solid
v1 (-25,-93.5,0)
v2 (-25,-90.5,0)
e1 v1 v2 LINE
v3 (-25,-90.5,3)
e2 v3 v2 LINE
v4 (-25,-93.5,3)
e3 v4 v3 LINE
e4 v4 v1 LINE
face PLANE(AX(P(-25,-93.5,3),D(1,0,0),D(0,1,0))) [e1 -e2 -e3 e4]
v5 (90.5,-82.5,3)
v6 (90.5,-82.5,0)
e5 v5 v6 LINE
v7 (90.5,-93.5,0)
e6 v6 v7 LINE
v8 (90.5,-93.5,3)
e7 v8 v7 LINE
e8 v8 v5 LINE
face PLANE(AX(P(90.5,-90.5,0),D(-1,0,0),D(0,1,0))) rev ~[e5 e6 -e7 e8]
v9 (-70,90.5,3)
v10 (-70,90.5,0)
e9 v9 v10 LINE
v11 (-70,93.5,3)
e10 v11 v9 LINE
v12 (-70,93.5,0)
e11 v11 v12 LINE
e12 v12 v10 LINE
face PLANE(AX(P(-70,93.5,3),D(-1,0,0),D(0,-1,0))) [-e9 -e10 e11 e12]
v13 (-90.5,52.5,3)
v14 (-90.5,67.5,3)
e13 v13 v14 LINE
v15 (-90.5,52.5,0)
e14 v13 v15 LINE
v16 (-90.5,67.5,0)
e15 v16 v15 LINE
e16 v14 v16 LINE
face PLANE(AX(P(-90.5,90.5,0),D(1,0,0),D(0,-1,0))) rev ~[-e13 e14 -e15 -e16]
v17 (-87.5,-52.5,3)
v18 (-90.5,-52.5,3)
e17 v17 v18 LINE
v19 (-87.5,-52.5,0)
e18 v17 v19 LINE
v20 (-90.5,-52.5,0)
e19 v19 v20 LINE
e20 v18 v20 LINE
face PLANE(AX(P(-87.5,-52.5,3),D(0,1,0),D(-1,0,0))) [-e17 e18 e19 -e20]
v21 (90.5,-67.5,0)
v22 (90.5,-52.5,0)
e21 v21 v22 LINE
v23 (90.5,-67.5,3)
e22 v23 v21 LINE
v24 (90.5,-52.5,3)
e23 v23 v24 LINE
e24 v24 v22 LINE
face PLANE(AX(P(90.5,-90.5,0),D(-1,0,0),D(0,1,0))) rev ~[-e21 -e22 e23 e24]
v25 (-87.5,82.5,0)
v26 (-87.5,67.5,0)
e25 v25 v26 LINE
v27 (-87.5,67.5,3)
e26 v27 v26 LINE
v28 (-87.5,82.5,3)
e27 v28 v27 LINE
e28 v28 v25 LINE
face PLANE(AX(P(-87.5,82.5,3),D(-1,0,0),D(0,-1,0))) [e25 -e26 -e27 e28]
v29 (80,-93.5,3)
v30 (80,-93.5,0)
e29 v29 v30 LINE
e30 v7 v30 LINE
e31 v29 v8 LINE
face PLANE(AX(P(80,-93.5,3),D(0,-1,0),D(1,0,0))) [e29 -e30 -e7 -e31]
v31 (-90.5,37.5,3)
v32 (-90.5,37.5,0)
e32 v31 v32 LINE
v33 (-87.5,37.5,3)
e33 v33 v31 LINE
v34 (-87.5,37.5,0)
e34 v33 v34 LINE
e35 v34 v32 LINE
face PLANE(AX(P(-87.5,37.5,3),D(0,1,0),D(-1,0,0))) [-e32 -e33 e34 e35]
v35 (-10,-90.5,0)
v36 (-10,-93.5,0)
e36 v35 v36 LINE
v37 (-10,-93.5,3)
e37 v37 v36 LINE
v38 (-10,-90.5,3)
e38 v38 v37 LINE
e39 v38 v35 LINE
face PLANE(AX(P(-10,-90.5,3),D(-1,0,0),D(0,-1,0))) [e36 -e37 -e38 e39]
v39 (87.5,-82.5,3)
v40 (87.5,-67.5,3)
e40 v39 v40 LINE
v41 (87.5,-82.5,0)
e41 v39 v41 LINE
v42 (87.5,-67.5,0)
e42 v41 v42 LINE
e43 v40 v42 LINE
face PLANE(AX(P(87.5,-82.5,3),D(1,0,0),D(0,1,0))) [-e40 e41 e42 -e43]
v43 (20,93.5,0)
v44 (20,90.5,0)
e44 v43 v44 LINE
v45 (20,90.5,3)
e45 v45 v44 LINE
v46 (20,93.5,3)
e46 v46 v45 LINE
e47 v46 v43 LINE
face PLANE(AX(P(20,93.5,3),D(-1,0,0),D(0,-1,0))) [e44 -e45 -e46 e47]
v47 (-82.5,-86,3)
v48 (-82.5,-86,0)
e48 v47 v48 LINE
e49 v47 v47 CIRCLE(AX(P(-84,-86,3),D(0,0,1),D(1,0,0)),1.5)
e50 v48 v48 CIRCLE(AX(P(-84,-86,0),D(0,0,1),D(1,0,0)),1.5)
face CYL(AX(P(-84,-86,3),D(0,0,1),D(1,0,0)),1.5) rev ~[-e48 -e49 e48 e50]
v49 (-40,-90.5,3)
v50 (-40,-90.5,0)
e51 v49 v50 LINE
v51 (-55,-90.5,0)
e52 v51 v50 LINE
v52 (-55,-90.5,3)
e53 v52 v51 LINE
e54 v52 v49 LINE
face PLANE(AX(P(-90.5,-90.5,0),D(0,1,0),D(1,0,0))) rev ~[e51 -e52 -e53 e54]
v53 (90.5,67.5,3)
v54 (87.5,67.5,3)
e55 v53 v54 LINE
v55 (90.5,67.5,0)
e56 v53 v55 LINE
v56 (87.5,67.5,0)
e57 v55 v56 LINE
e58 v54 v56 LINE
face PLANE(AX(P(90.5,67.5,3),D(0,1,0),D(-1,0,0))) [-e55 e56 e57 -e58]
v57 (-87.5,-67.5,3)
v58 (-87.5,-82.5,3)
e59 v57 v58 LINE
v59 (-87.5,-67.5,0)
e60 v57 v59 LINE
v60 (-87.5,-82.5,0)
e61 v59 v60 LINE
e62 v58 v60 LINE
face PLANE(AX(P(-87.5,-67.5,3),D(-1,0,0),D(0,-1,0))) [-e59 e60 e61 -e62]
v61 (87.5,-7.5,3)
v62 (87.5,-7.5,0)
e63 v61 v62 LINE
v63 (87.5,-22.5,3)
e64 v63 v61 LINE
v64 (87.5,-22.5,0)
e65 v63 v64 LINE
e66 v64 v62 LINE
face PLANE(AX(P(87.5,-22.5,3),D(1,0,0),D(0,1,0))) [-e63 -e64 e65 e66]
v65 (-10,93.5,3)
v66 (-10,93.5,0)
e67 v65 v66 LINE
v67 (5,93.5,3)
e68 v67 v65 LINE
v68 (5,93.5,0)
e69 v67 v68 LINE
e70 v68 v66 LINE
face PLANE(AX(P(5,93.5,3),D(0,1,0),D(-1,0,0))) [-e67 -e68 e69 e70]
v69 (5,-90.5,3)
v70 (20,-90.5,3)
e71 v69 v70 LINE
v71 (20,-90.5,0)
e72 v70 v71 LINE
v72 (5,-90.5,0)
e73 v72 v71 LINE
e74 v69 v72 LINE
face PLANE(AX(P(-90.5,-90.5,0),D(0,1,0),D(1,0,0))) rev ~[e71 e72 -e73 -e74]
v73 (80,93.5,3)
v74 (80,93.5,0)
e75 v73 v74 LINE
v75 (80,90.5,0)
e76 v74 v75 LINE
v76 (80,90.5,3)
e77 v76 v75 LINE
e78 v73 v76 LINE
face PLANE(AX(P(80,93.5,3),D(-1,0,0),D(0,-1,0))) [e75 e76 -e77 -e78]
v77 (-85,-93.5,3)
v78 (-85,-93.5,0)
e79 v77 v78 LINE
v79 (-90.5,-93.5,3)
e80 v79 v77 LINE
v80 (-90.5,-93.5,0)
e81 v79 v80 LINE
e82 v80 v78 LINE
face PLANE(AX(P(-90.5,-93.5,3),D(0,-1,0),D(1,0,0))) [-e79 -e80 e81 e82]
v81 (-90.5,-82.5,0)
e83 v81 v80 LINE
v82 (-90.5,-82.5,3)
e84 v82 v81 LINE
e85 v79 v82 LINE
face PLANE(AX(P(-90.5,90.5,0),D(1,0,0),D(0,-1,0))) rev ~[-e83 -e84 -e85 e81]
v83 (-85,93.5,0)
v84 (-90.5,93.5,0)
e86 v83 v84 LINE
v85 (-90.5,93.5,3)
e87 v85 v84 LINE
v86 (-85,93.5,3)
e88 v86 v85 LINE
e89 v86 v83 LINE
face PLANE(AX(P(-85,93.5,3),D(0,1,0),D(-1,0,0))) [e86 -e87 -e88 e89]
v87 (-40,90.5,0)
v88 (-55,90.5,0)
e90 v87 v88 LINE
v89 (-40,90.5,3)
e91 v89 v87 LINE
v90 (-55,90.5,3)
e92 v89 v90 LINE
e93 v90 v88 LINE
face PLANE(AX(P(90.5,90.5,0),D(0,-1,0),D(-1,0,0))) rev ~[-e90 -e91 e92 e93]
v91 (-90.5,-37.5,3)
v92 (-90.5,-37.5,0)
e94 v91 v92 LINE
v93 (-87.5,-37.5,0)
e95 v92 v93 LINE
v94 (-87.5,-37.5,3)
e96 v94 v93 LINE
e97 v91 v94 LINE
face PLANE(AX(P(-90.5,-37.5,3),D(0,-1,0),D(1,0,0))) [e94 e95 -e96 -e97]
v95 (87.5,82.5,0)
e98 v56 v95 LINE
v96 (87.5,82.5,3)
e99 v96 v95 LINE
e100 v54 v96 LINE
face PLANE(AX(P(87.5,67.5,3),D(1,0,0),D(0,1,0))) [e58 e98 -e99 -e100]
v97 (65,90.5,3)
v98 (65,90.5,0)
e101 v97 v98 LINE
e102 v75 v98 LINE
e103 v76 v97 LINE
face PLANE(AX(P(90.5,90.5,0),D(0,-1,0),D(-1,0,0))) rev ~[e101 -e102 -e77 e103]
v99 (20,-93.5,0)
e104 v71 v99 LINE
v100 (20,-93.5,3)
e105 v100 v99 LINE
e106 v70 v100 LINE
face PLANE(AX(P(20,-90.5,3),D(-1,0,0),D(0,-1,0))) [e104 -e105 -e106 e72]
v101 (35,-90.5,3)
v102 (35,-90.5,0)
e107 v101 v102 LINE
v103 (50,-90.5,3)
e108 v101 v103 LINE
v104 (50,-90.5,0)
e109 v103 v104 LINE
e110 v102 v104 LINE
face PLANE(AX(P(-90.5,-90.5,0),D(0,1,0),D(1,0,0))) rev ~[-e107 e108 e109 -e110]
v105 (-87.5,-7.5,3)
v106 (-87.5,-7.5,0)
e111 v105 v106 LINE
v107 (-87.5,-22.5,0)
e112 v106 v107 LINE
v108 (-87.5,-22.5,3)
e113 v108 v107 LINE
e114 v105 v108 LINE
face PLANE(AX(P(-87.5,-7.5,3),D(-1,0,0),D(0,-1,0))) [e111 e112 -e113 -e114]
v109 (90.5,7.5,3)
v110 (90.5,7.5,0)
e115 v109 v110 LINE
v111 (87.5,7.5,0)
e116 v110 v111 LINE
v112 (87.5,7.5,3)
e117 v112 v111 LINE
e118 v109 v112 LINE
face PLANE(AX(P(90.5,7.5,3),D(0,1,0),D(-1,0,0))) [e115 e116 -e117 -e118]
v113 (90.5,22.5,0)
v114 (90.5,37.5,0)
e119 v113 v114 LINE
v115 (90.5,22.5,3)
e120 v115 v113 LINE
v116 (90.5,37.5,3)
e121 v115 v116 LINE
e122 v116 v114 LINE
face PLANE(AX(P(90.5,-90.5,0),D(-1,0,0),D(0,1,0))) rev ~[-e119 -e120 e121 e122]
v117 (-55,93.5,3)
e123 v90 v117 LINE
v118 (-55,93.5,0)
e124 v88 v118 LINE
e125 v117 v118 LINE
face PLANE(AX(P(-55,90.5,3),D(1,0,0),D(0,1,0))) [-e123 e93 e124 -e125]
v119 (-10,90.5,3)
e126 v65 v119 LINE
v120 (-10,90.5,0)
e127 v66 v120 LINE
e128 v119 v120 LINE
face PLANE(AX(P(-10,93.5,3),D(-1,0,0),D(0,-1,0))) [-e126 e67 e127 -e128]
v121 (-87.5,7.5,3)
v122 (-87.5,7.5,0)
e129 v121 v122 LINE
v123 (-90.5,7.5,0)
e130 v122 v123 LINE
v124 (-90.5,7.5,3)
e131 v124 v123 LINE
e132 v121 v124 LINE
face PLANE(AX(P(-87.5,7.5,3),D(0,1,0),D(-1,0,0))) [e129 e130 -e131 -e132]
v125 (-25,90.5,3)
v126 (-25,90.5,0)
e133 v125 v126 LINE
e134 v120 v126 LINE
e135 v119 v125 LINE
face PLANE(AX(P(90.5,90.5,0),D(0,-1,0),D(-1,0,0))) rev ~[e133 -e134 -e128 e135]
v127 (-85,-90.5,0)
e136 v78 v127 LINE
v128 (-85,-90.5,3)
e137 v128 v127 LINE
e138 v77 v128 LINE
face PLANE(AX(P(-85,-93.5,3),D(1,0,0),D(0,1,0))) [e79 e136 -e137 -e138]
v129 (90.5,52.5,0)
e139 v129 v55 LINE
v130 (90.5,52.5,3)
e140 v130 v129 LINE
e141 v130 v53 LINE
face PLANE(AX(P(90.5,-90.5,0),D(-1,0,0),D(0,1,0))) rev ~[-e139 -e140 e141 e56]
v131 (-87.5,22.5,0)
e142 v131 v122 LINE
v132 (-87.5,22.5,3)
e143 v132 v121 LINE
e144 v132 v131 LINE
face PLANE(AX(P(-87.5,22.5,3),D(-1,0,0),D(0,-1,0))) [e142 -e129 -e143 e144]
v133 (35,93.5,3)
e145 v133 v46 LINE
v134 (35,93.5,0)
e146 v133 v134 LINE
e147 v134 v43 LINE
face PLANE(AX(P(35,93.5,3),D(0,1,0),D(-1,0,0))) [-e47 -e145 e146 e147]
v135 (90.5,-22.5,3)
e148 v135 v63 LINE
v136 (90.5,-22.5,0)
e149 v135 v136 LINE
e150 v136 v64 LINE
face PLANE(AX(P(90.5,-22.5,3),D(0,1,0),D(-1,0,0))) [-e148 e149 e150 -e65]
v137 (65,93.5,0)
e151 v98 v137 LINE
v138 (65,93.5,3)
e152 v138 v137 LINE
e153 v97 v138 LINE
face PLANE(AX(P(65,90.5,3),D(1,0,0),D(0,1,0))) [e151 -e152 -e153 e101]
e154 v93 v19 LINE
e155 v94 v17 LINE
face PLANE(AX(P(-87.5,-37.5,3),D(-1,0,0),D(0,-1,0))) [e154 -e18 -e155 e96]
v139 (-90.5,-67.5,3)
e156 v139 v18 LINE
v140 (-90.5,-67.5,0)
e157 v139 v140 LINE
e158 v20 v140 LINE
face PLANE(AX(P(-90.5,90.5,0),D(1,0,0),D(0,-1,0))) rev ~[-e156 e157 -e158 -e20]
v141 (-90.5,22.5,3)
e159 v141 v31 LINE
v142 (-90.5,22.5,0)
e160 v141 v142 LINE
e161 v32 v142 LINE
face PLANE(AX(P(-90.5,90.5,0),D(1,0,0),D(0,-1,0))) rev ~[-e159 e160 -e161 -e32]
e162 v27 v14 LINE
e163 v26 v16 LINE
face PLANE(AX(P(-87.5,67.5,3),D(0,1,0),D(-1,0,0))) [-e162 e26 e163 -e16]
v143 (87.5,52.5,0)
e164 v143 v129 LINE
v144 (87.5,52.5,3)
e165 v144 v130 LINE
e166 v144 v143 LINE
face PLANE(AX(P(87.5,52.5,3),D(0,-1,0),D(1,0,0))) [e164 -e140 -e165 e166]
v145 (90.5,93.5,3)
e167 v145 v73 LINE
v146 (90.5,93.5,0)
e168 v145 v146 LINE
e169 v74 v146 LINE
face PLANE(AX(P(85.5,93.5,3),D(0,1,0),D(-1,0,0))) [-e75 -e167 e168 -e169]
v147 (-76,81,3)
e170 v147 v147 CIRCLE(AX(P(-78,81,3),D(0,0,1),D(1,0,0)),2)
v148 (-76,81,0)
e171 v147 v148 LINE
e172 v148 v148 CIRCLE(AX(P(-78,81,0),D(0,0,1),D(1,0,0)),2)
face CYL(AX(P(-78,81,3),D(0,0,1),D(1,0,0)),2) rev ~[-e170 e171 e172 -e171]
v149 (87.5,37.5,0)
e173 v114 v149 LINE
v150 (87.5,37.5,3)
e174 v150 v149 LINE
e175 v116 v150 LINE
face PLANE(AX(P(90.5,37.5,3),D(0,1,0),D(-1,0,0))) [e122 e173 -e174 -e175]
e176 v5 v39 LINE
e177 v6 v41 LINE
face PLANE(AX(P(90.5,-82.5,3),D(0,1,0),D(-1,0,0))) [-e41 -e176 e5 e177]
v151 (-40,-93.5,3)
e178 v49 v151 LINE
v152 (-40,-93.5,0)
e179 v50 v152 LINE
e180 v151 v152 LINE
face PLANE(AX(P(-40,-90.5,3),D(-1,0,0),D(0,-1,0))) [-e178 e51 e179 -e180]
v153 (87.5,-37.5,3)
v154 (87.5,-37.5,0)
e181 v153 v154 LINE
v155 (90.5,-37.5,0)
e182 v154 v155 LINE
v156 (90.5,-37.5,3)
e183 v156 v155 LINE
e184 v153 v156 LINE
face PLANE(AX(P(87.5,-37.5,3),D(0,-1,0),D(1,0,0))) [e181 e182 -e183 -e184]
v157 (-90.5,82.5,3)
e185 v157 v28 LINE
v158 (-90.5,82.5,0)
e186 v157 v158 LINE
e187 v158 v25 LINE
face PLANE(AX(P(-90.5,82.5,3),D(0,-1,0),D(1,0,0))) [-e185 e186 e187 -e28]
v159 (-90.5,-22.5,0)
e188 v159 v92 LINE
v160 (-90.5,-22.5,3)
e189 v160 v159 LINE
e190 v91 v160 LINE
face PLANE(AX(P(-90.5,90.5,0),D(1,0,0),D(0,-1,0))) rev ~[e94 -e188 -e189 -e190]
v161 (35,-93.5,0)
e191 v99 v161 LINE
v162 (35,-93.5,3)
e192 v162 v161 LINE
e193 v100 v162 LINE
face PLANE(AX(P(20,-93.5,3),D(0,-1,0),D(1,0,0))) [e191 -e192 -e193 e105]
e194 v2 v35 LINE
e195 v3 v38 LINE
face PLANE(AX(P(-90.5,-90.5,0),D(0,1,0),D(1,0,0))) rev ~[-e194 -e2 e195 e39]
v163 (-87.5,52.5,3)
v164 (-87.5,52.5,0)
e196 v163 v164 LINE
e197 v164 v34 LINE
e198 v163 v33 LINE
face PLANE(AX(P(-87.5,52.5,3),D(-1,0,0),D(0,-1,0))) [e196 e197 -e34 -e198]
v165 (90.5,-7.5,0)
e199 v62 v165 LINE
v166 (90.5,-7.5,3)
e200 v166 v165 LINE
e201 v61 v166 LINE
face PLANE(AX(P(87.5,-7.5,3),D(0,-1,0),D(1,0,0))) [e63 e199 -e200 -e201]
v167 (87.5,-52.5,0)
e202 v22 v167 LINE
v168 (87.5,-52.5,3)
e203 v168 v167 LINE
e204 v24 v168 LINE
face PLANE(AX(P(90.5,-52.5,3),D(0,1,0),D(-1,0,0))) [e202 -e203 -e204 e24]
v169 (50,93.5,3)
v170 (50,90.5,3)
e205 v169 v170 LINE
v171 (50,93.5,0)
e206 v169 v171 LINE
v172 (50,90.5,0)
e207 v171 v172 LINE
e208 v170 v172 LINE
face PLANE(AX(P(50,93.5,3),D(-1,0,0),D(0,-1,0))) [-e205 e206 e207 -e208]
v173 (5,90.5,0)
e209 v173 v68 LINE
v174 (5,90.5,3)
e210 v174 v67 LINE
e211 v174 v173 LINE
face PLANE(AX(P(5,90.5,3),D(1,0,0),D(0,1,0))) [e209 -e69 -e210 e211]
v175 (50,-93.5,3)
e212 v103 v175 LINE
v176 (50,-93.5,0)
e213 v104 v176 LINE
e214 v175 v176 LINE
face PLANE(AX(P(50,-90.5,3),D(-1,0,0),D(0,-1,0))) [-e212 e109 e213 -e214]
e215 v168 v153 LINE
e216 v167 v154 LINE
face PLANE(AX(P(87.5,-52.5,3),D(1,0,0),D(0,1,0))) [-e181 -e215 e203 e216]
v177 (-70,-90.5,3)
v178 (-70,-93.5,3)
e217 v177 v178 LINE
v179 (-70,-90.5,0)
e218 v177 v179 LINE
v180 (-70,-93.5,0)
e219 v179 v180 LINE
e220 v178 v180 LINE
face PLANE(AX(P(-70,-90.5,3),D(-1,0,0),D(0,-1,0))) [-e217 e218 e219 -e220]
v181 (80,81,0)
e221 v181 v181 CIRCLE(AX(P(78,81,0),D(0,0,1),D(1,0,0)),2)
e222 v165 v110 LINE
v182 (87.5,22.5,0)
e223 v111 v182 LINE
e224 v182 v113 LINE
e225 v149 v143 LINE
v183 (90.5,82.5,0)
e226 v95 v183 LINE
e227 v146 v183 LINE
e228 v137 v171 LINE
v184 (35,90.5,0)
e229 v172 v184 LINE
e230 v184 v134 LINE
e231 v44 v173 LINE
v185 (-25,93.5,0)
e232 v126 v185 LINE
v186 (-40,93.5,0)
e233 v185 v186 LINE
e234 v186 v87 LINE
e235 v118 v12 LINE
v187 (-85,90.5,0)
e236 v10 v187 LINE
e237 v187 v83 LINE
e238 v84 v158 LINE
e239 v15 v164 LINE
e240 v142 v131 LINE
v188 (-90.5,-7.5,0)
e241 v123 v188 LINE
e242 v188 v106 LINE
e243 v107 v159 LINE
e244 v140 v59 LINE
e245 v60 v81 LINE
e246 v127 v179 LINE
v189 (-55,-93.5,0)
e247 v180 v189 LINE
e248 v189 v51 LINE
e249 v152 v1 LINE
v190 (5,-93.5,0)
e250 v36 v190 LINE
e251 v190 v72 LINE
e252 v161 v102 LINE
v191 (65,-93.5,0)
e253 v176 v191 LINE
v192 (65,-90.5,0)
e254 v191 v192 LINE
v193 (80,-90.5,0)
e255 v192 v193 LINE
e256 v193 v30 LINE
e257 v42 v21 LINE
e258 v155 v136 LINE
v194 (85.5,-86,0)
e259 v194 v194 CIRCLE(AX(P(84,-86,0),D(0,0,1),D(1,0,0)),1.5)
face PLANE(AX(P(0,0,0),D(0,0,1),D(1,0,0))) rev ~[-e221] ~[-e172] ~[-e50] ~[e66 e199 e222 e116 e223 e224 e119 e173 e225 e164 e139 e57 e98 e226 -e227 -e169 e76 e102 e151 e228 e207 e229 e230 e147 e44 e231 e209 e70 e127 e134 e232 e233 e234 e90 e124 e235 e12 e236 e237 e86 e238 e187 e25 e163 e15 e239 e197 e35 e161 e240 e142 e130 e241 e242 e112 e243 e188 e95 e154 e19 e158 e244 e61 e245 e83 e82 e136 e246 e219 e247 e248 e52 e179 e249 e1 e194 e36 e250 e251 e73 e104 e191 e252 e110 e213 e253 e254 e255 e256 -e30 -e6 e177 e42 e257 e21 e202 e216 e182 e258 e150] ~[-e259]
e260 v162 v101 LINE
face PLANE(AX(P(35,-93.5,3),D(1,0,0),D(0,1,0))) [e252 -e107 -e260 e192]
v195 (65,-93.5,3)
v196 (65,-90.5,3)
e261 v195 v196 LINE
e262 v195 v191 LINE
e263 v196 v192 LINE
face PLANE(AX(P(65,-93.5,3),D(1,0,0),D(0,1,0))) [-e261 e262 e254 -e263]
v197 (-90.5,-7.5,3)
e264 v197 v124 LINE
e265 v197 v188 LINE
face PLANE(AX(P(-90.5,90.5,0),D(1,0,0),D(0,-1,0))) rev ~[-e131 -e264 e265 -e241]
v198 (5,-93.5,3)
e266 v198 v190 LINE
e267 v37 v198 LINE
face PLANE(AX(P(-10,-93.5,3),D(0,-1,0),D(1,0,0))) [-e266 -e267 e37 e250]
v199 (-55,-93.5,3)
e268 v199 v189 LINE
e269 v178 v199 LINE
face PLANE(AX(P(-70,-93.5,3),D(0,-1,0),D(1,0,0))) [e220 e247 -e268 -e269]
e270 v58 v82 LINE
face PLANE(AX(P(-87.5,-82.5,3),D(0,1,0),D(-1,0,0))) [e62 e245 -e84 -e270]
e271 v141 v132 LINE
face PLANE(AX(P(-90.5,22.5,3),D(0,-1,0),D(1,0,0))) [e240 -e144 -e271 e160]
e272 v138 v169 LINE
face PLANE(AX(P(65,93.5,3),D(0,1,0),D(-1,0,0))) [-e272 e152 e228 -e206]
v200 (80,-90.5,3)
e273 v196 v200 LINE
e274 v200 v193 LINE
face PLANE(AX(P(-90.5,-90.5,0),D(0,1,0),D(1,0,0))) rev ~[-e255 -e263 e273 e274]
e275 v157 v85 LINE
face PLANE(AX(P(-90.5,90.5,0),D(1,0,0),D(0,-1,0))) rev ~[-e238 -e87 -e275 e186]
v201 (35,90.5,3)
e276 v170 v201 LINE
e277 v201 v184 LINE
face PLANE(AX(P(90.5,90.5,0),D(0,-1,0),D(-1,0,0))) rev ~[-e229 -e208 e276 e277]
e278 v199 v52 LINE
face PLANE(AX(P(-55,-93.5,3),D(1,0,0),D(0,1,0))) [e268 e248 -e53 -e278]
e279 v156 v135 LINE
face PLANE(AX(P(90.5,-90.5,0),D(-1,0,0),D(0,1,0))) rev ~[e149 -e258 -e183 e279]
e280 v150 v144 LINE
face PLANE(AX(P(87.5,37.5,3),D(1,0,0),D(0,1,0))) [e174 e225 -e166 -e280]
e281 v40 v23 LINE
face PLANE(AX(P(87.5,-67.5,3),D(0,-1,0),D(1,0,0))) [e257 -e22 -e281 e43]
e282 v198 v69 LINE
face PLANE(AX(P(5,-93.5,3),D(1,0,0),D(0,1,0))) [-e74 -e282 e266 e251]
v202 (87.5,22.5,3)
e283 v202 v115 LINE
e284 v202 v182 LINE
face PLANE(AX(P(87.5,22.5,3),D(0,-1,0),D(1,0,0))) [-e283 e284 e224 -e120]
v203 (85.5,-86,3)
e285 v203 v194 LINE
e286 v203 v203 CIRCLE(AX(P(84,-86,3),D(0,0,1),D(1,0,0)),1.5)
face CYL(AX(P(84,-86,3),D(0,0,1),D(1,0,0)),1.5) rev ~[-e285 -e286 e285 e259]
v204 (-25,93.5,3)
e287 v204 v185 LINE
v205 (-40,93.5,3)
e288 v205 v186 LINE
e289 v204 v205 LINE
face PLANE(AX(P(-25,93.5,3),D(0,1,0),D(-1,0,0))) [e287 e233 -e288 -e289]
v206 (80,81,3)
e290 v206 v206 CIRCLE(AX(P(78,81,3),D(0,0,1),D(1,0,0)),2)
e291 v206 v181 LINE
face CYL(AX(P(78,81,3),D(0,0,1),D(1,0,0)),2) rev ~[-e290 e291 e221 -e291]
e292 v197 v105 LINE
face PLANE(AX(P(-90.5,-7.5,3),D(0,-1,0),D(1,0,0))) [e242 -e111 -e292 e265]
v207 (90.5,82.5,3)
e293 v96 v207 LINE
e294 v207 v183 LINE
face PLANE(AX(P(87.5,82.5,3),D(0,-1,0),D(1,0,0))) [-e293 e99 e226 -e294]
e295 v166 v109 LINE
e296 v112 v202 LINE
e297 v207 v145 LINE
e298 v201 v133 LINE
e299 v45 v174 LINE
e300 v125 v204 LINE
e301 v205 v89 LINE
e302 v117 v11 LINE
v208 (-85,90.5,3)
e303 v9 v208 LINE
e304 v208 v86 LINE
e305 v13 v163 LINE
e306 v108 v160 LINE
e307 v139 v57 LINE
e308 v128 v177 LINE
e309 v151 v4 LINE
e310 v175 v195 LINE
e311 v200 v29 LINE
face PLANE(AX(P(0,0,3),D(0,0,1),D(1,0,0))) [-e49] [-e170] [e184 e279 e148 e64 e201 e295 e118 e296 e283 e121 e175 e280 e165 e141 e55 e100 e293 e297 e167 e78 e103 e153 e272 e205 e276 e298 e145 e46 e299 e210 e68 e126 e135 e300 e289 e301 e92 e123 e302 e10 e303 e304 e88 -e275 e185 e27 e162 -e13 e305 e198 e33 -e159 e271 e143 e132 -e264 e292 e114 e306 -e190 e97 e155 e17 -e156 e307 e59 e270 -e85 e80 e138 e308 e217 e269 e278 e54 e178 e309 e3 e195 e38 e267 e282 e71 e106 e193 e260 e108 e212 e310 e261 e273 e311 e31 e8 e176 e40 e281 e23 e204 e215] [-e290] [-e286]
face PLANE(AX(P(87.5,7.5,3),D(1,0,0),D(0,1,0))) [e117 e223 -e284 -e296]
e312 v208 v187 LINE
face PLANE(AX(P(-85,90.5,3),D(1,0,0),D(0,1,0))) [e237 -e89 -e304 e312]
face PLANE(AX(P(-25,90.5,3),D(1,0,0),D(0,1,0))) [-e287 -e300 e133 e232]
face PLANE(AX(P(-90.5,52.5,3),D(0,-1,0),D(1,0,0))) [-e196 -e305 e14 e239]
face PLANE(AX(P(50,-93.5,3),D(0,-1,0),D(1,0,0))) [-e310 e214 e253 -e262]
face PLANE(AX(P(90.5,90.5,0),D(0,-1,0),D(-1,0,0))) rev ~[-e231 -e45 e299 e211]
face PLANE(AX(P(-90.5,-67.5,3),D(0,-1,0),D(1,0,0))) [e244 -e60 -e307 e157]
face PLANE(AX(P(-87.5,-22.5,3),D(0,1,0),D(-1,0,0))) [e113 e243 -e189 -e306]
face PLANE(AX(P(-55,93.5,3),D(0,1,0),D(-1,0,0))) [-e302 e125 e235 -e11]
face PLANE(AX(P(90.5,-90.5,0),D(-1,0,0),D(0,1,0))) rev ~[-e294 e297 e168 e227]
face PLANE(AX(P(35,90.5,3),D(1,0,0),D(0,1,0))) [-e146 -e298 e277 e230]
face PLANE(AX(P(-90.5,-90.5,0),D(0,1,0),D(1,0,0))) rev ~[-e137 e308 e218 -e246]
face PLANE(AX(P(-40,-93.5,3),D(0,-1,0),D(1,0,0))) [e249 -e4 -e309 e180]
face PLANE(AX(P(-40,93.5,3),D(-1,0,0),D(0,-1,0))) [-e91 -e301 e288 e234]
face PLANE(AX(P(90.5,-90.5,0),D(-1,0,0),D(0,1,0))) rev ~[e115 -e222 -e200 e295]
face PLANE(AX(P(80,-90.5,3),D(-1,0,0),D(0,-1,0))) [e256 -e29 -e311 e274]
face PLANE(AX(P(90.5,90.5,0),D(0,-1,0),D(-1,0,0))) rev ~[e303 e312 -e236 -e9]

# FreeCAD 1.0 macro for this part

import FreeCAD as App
import Part
import Sketcher

V = App.Vector
Q = App.Units.Quantity

doc = App.newDocument("Part")
body = doc.addObject("PartDesign::Body", "Body")

# Sketch on XY plane
sketch1 = body.newObject("Sketcher::SketchObject", "Sketch")
sketch1.AttachmentSupport = (doc.getObject("XY_Plane"), [""])
sketch1.MapMode = "FlatFace"
sketch1.addGeometry([
    Part.LineSegment(V(-90, 90, 0), V(-90, -90, 0)),
    Part.LineSegment(V(-90, -90, 0), V(90, -90, 0)),
    Part.LineSegment(V(90, -90, 0), V(90, 90, 0)),
    Part.LineSegment(V(90, 90, 0), V(-90, 90, 0)),
], False)
sketch1.addConstraint([
    Sketcher.Constraint("Coincident", 0, 2, 1, 1),
    Sketcher.Constraint("Coincident", 1, 2, 2, 1),
    Sketcher.Constraint("Coincident", 2, 2, 3, 1),
    Sketcher.Constraint("Coincident", 3, 2, 0, 1),
    Sketcher.Constraint("Vertical", 0),
    Sketcher.Constraint("Horizontal", 1),
    Sketcher.Constraint("Vertical", 2),
    Sketcher.Constraint("Horizontal", 3),
    Sketcher.Constraint("Symmetric", 0, 2, 2, 2, -1, 1),
    Sketcher.Constraint("Equal", 3, 0),
    Sketcher.Constraint("DistanceX", 1, 1, 1, 2, Q("181 mm")),
])
pad1 = body.newObject("PartDesign::Pad", "Pad")
pad1.Profile = sketch1
pad1.Length = 3

# Sketch on XY plane
sketch2 = body.newObject("Sketcher::SketchObject", "Sketch001")
sketch2.AttachmentSupport = (doc.getObject("XY_Plane"), [""])
sketch2.MapMode = "FlatFace"
sketch2.AttachmentOffset = App.Placement(V(0, 0, 3), App.Rotation())
sketch2.addGeometry([
    Part.LineSegment(V(-90.5, 90.5, 0), V(-85, 90.5, 0)),  # 0
    Part.LineSegment(V(-85, 90.5, 0), V(-85, 93.5, 0)),  # 1
    Part.LineSegment(V(-85, 93.5, 0), V(-90.5, 93.5, 0)),  # 2
    Part.LineSegment(V(-90.5, 93.5, 0), V(-90.5, 90.5, 0)),  # 3
    Part.LineSegment(V(-70, 90.5, 0), V(-55, 90.5, 0)),  # 4
    Part.LineSegment(V(-55, 90.5, 0), V(-55, 93.5, 0)),  # 5
    Part.LineSegment(V(-55, 93.5, 0), V(-70, 93.5, 0)),  # 6
    Part.LineSegment(V(-70, 93.5, 0), V(-70, 90.5, 0)),  # 7
    Part.LineSegment(V(-40, 90.5, 0), V(-25, 90.5, 0)),  # 8
    Part.LineSegment(V(-25, 90.5, 0), V(-25, 93.5, 0)),  # 9
    Part.LineSegment(V(-25, 93.5, 0), V(-40, 93.5, 0)),  # 10
    Part.LineSegment(V(-40, 93.5, 0), V(-40, 90.5, 0)),  # 11
    Part.LineSegment(V(-10, 90.5, 0), V(5, 90.5, 0)),  # 12
    Part.LineSegment(V(5, 90.5, 0), V(5, 93.5, 0)),  # 13
    Part.LineSegment(V(5, 93.5, 0), V(-10, 93.5, 0)),  # 14
    Part.LineSegment(V(-10, 93.5, 0), V(-10, 90.5, 0)),  # 15
    Part.LineSegment(V(20, 90.5, 0), V(35, 90.5, 0)),  # 16
    Part.LineSegment(V(35, 90.5, 0), V(35, 93.5, 0)),  # 17
    Part.LineSegment(V(35, 93.5, 0), V(20, 93.5, 0)),  # 18
    Part.LineSegment(V(20, 93.5, 0), V(20, 90.5, 0)),  # 19
    Part.LineSegment(V(50, 90.5, 0), V(65, 90.5, 0)),  # 20
    Part.LineSegment(V(65, 90.5, 0), V(65, 93.5, 0)),  # 21
    Part.LineSegment(V(65, 93.5, 0), V(50, 93.5, 0)),  # 22
    Part.LineSegment(V(50, 93.5, 0), V(50, 90.5, 0)),  # 23
    Part.LineSegment(V(80, 90.5, 0), V(85.5, 90.5, 0)),  # 24
    Part.LineSegment(V(85.5, 90.5, 0), V(85.5, 93.5, 0)),  # 25
    Part.LineSegment(V(85.5, 93.5, 0), V(80, 93.5, 0)),  # 26
    Part.LineSegment(V(80, 93.5, 0), V(80, 90.5, 0)),  # 27
    Part.LineSegment(V(-90.5, -90.5, 0), V(-90.5, -93.5, 0)),  # 28
    Part.LineSegment(V(-90.5, -93.5, 0), V(-85, -93.5, 0)),  # 29
    Part.LineSegment(V(-85, -93.5, 0), V(-85, -90.5, 0)),  # 30
    Part.LineSegment(V(-85, -90.5, 0), V(-90.5, -90.5, 0)),  # 31
    Part.LineSegment(V(80, -90.5, 0), V(80, -93.5, 0)),  # 32
    Part.LineSegment(V(80, -93.5, 0), V(85.5, -93.5, 0)),  # 33
    Part.LineSegment(V(85.5, -93.5, 0), V(85.5, -90.5, 0)),  # 34
    Part.LineSegment(V(85.5, -90.5, 0), V(80, -90.5, 0)),  # 35
    Part.LineSegment(V(-70, -93.5, 0), V(-55, -93.5, 0)),  # 36
    Part.LineSegment(V(-55, -93.5, 0), V(-55, -90.5, 0)),  # 37
    Part.LineSegment(V(-55, -90.5, 0), V(-70, -90.5, 0)),  # 38
    Part.LineSegment(V(-70, -90.5, 0), V(-70, -93.5, 0)),  # 39
    Part.LineSegment(V(-40, -93.5, 0), V(-25, -93.5, 0)),  # 40
    Part.LineSegment(V(-25, -93.5, 0), V(-25, -90.5, 0)),  # 41
    Part.LineSegment(V(-25, -90.5, 0), V(-40, -90.5, 0)),  # 42
    Part.LineSegment(V(-40, -90.5, 0), V(-40, -93.5, 0)),  # 43
    Part.LineSegment(V(-10, -93.5, 0), V(5, -93.5, 0)),  # 44
    Part.LineSegment(V(5, -93.5, 0), V(5, -90.5, 0)),  # 45
    Part.LineSegment(V(5, -90.5, 0), V(-10, -90.5, 0)),  # 46
    Part.LineSegment(V(-10, -90.5, 0), V(-10, -93.5, 0)),  # 47
    Part.LineSegment(V(20, -93.5, 0), V(35, -93.5, 0)),  # 48
    Part.LineSegment(V(35, -93.5, 0), V(35, -90.5, 0)),  # 49
    Part.LineSegment(V(35, -90.5, 0), V(20, -90.5, 0)),  # 50
    Part.LineSegment(V(20, -90.5, 0), V(20, -93.5, 0)),  # 51
    Part.LineSegment(V(50, -93.5, 0), V(65, -93.5, 0)),  # 52
    Part.LineSegment(V(65, -93.5, 0), V(65, -90.5, 0)),  # 53
    Part.LineSegment(V(65, -90.5, 0), V(50, -90.5, 0)),  # 54
    Part.LineSegment(V(50, -90.5, 0), V(50, -93.5, 0)),  # 55
], False)
sketch2.addConstraint([
    Sketcher.Constraint("Coincident", 0, 2, 1, 1),
    Sketcher.Constraint("Coincident", 1, 2, 2, 1),
    Sketcher.Constraint("Coincident", 2, 2, 3, 1),
    Sketcher.Constraint("Coincident", 3, 2, 0, 1),
    Sketcher.Constraint("Coincident", 4, 2, 5, 1),
    Sketcher.Constraint("Coincident", 5, 2, 6, 1),
    Sketcher.Constraint("Coincident", 6, 2, 7, 1),
    Sketcher.Constraint("Coincident", 7, 2, 4, 1),
    Sketcher.Constraint("Coincident", 8, 2, 9, 1),
    Sketcher.Constraint("Coincident", 9, 2, 10, 1),
    Sketcher.Constraint("Coincident", 10, 2, 11, 1),
    Sketcher.Constraint("Coincident", 11, 2, 8, 1),
    Sketcher.Constraint("Coincident", 12, 2, 13, 1),
    Sketcher.Constraint("Coincident", 13, 2, 14, 1),
    Sketcher.Constraint("Coincident", 14, 2, 15, 1),
    Sketcher.Constraint("Coincident", 15, 2, 12, 1),
    Sketcher.Constraint("Coincident", 16, 2, 17, 1),
    Sketcher.Constraint("Coincident", 17, 2, 18, 1),
    Sketcher.Constraint("Coincident", 18, 2, 19, 1),
    Sketcher.Constraint("Coincident", 19, 2, 16, 1),
    Sketcher.Constraint("Coincident", 20, 2, 21, 1),
    Sketcher.Constraint("Coincident", 21, 2, 22, 1),
    Sketcher.Constraint("Coincident", 22, 2, 23, 1),
    Sketcher.Constraint("Coincident", 23, 2, 20, 1),
    Sketcher.Constraint("Coincident", 24, 2, 25, 1),
    Sketcher.Constraint("Coincident", 25, 2, 26, 1),
    Sketcher.Constraint("Coincident", 26, 2, 27, 1),
    Sketcher.Constraint("Coincident", 27, 2, 24, 1),
    Sketcher.Constraint("Coincident", 28, 2, 29, 1),
    Sketcher.Constraint("Coincident", 29, 2, 30, 1),
    Sketcher.Constraint("Coincident", 30, 2, 31, 1),
    Sketcher.Constraint("Coincident", 31, 2, 28, 1),
    Sketcher.Constraint("Coincident", 32, 2, 33, 1),
    Sketcher.Constraint("Coincident", 33, 2, 34, 1),
    Sketcher.Constraint("Coincident", 34, 2, 35, 1),
    Sketcher.Constraint("Coincident", 35, 2, 32, 1),
    Sketcher.Constraint("Coincident", 36, 2, 37, 1),
    Sketcher.Constraint("Coincident", 37, 2, 38, 1),
    Sketcher.Constraint("Coincident", 38, 2, 39, 1),
    Sketcher.Constraint("Coincident", 39, 2, 36, 1),
    Sketcher.Constraint("Coincident", 40, 2, 41, 1),
    Sketcher.Constraint("Coincident", 41, 2, 42, 1),
    Sketcher.Constraint("Coincident", 42, 2, 43, 1),
    Sketcher.Constraint("Coincident", 43, 2, 40, 1),
    Sketcher.Constraint("Coincident", 44, 2, 45, 1),
    Sketcher.Constraint("Coincident", 45, 2, 46, 1),
    Sketcher.Constraint("Coincident", 46, 2, 47, 1),
    Sketcher.Constraint("Coincident", 47, 2, 44, 1),
    Sketcher.Constraint("Coincident", 48, 2, 49, 1),
    Sketcher.Constraint("Coincident", 49, 2, 50, 1),
    Sketcher.Constraint("Coincident", 50, 2, 51, 1),
    Sketcher.Constraint("Coincident", 51, 2, 48, 1),
    Sketcher.Constraint("Coincident", 52, 2, 53, 1),
    Sketcher.Constraint("Coincident", 53, 2, 54, 1),
    Sketcher.Constraint("Coincident", 54, 2, 55, 1),
    Sketcher.Constraint("Coincident", 55, 2, 52, 1),
    Sketcher.Constraint("Horizontal", 0),
    Sketcher.Constraint("Vertical", 1),
    Sketcher.Constraint("Horizontal", 2),
    Sketcher.Constraint("Vertical", 3),
    Sketcher.Constraint("Horizontal", 4),
    Sketcher.Constraint("Vertical", 5),
    Sketcher.Constraint("Horizontal", 6),
    Sketcher.Constraint("Vertical", 7),
    Sketcher.Constraint("Horizontal", 8),
    Sketcher.Constraint("Vertical", 9),
    Sketcher.Constraint("Horizontal", 10),
    Sketcher.Constraint("Vertical", 11),
    Sketcher.Constraint("Horizontal", 12),
    Sketcher.Constraint("Vertical", 13),
    Sketcher.Constraint("Horizontal", 14),
    Sketcher.Constraint("Vertical", 15),
    Sketcher.Constraint("Horizontal", 16),
    Sketcher.Constraint("Vertical", 17),
    Sketcher.Constraint("Horizontal", 18),
    Sketcher.Constraint("Vertical", 19),
    Sketcher.Constraint("Horizontal", 20),
    Sketcher.Constraint("Vertical", 21),
    Sketcher.Constraint("Horizontal", 22),
    Sketcher.Constraint("Vertical", 23),
    Sketcher.Constraint("Horizontal", 24),
    Sketcher.Constraint("Vertical", 25),
    Sketcher.Constraint("Horizontal", 26),
    Sketcher.Constraint("Vertical", 27),
    Sketcher.Constraint("Vertical", 28),
    Sketcher.Constraint("Horizontal", 29),
    Sketcher.Constraint("Vertical", 30),
    Sketcher.Constraint("Horizontal", 31),
    Sketcher.Constraint("Vertical", 32),
    Sketcher.Constraint("Horizontal", 33),
    Sketcher.Constraint("Vertical", 34),
    Sketcher.Constraint("Horizontal", 35),
    Sketcher.Constraint("Horizontal", 36),
    Sketcher.Constraint("Vertical", 37),
    Sketcher.Constraint("Horizontal", 38),
    Sketcher.Constraint("Vertical", 39),
    Sketcher.Constraint("Horizontal", 40),
    Sketcher.Constraint("Vertical", 41),
    Sketcher.Constraint("Horizontal", 42),
    Sketcher.Constraint("Vertical", 43),
    Sketcher.Constraint("Horizontal", 44),
    Sketcher.Constraint("Vertical", 45),
    Sketcher.Constraint("Horizontal", 46),
    Sketcher.Constraint("Vertical", 47),
    Sketcher.Constraint("Horizontal", 48),
    Sketcher.Constraint("Vertical", 49),
    Sketcher.Constraint("Horizontal", 50),
    Sketcher.Constraint("Vertical", 51),
    Sketcher.Constraint("Horizontal", 52),
    Sketcher.Constraint("Vertical", 53),
    Sketcher.Constraint("Horizontal", 54),
    Sketcher.Constraint("Vertical", 55),
    Sketcher.Constraint("Symmetric", 2, 2, 28, 2, -1),
    Sketcher.Constraint("Symmetric", 0, 2, 30, 2, -1),
    Sketcher.Constraint("Symmetric", 26, 2, 32, 2, -1),
    Sketcher.Constraint("Symmetric", 24, 2, 34, 2, -1),
    Sketcher.Constraint("Symmetric", 5, 2, 36, 2, -1),
    Sketcher.Constraint("Symmetric", 7, 2, 38, 2, -1),
    Sketcher.Constraint("Symmetric", 9, 2, 40, 2, -1),
    Sketcher.Constraint("Symmetric", 11, 2, 42, 2, -1),
    Sketcher.Constraint("Symmetric", 13, 2, 44, 2, -1),
    Sketcher.Constraint("Symmetric", 15, 2, 46, 2, -1),
    Sketcher.Constraint("Symmetric", 17, 2, 48, 2, -1),
    Sketcher.Constraint("Symmetric", 19, 2, 50, 2, -1),
    Sketcher.Constraint("Symmetric", 21, 2, 52, 2, -1),
    Sketcher.Constraint("Symmetric", 23, 2, 54, 2, -1),
    Sketcher.Constraint("Horizontal", 3, 2, 4, 2),
    Sketcher.Constraint("Horizontal", 2, 2, 5, 2),
    Sketcher.Constraint("Horizontal", 7, 2, 8, 2),
    Sketcher.Constraint("Horizontal", 6, 2, 9, 2),
    Sketcher.Constraint("Horizontal", 11, 2, 12, 2),
    Sketcher.Constraint("Horizontal", 10, 2, 13, 2),
    Sketcher.Constraint("Horizontal", 15, 2, 16, 2),
    Sketcher.Constraint("Horizontal", 14, 2, 17, 2),
    Sketcher.Constraint("Horizontal", 19, 2, 20, 2),
    Sketcher.Constraint("Horizontal", 18, 2, 21, 2),
    Sketcher.Constraint("Horizontal", 23, 2, 24, 2),
    Sketcher.Constraint("Horizontal", 22, 2, 25, 2),
    Sketcher.Constraint("Equal", 6, 8),
    Sketcher.Constraint("Equal", 10, 12),
    Sketcher.Constraint("Equal", 14, 16),
    Sketcher.Constraint("Equal", 18, 20),
    Sketcher.Constraint("Equal", 2, 24),
    Sketcher.Constraint("DistanceX", 4, 1, 4, 2, Q("15 mm")),
    Sketcher.Constraint("DistanceY", 1, 1, 1, 2, Q("3 mm")),
    Sketcher.Constraint("DistanceX", 0, 1, 0, 2, Q("5.5 mm")),
    Sketcher.Constraint("DistanceX", 0, 2, 4, 2, Q("30 mm")),
    Sketcher.Constraint("DistanceX", 4, 2, 8, 2, Q("30 mm")),
    Sketcher.Constraint("DistanceX", 8, 2, 12, 2, Q("30 mm")),
    Sketcher.Constraint("DistanceX", 12, 2, 16, 2, Q("30 mm")),
    Sketcher.Constraint("DistanceX", 16, 2, 20, 2, Q("30 mm")),
    Sketcher.Constraint("DistanceX", 21, 2, 26, 2, Q("15 mm")),
    Sketcher.Constraint("DistanceY", 28, 2, 3, 2, Q("184 mm")),
    Sketcher.Constraint("DistanceX", 0, 2, -1, 1, Q("85 mm")),
])
pad2 = body.newObject("PartDesign::Pad", "Pad001")
pad2.Profile = sketch2
pad2.Length = 3
pad2.Reversed = True

# Sketch on XY plane
sketch3 = body.newObject("Sketcher::SketchObject", "Sketch002")
sketch3.AttachmentSupport = (doc.getObject("XY_Plane"), [""])
sketch3.MapMode = "FlatFace"
sketch3.AttachmentOffset = App.Placement(V(0, 0, 3), App.Rotation())
sketch3.addGeometry([
    Part.LineSegment(V(-87.5, 82.5, 0), V(-90.5, 82.5, 0)),  # 0
    Part.LineSegment(V(-90.5, 82.5, 0), V(-90.5, 67.5, 0)),  # 1
    Part.LineSegment(V(-90.5, 67.5, 0), V(-87.5, 67.5, 0)),  # 2
    Part.LineSegment(V(-87.5, 67.5, 0), V(-87.5, 82.5, 0)),  # 3
    Part.LineSegment(V(-87.5, -67.5, 0), V(-90.5, -67.5, 0)),  # 4
    Part.LineSegment(V(-90.5, -67.5, 0), V(-90.5, -82.5, 0)),  # 5
    Part.LineSegment(V(-90.5, -82.5, 0), V(-87.5, -82.5, 0)),  # 6
    Part.LineSegment(V(-87.5, -82.5, 0), V(-87.5, -67.5, 0)),  # 7
    Part.LineSegment(V(-87.5, -37.5, 0), V(-90.5, -37.5, 0)),  # 8
    Part.LineSegment(V(-90.5, -37.5, 0), V(-90.5, -52.5, 0)),  # 9
    Part.LineSegment(V(-90.5, -52.5, 0), V(-87.5, -52.5, 0)),  # 10
    Part.LineSegment(V(-87.5, -52.5, 0), V(-87.5, -37.5, 0)),  # 11
    Part.LineSegment(V(-87.5, -7.5, 0), V(-90.5, -7.5, 0)),  # 12
    Part.LineSegment(V(-90.5, -7.5, 0), V(-90.5, -22.5, 0)),  # 13
    Part.LineSegment(V(-90.5, -22.5, 0), V(-87.5, -22.5, 0)),  # 14
    Part.LineSegment(V(-87.5, -22.5, 0), V(-87.5, -7.5, 0)),  # 15
    Part.LineSegment(V(-87.5, 22.5, 0), V(-90.5, 22.5, 0)),  # 16
    Part.LineSegment(V(-90.5, 22.5, 0), V(-90.5, 7.5, 0)),  # 17
    Part.LineSegment(V(-90.5, 7.5, 0), V(-87.5, 7.5, 0)),  # 18
    Part.LineSegment(V(-87.5, 7.5, 0), V(-87.5, 22.5, 0)),  # 19
    Part.LineSegment(V(-87.5, 52.5, 0), V(-90.5, 52.5, 0)),  # 20
    Part.LineSegment(V(-90.5, 52.5, 0), V(-90.5, 37.5, 0)),  # 21
    Part.LineSegment(V(-90.5, 37.5, 0), V(-87.5, 37.5, 0)),  # 22
    Part.LineSegment(V(-87.5, 37.5, 0), V(-87.5, 52.5, 0)),  # 23
    Part.LineSegment(V(90.5, 82.5, 0), V(87.5, 82.5, 0)),  # 24
    Part.LineSegment(V(87.5, 82.5, 0), V(87.5, 67.5, 0)),  # 25
    Part.LineSegment(V(87.5, 67.5, 0), V(90.5, 67.5, 0)),  # 26
    Part.LineSegment(V(90.5, 67.5, 0), V(90.5, 82.5, 0)),  # 27
    Part.LineSegment(V(90.5, 52.5, 0), V(87.5, 52.5, 0)),  # 28
    Part.LineSegment(V(87.5, 52.5, 0), V(87.5, 37.5, 0)),  # 29
    Part.LineSegment(V(87.5, 37.5, 0), V(90.5, 37.5, 0)),  # 30
    Part.LineSegment(V(90.5, 37.5, 0), V(90.5, 52.5, 0)),  # 31
    Part.LineSegment(V(90.5, 22.5, 0), V(87.5, 22.5, 0)),  # 32
    Part.LineSegment(V(87.5, 22.5, 0), V(87.5, 7.5, 0)),  # 33
    Part.LineSegment(V(87.5, 7.5, 0), V(90.5, 7.5, 0)),  # 34
    Part.LineSegment(V(90.5, 7.5, 0), V(90.5, 22.5, 0)),  # 35
    Part.LineSegment(V(90.5, -7.5, 0), V(87.5, -7.5, 0)),  # 36
    Part.LineSegment(V(87.5, -7.5, 0), V(87.5, -22.5, 0)),  # 37
    Part.LineSegment(V(87.5, -22.5, 0), V(90.5, -22.5, 0)),  # 38
    Part.LineSegment(V(90.5, -22.5, 0), V(90.5, -7.5, 0)),  # 39
    Part.LineSegment(V(90.5, -37.5, 0), V(87.5, -37.5, 0)),  # 40
    Part.LineSegment(V(87.5, -37.5, 0), V(87.5, -52.5, 0)),  # 41
    Part.LineSegment(V(87.5, -52.5, 0), V(90.5, -52.5, 0)),  # 42
    Part.LineSegment(V(90.5, -52.5, 0), V(90.5, -37.5, 0)),  # 43
    Part.LineSegment(V(90.5, -67.5, 0), V(87.5, -67.5, 0)),  # 44
    Part.LineSegment(V(87.5, -67.5, 0), V(87.5, -82.5, 0)),  # 45
    Part.LineSegment(V(87.5, -82.5, 0), V(90.5, -82.5, 0)),  # 46
    Part.LineSegment(V(90.5, -82.5, 0), V(90.5, -67.5, 0)),  # 47
], False)
sketch3.addConstraint([
    Sketcher.Constraint("Coincident", 0, 2, 1, 1),
    Sketcher.Constraint("Coincident", 1, 2, 2, 1),
    Sketcher.Constraint("Coincident", 2, 2, 3, 1),
    Sketcher.Constraint("Coincident", 3, 2, 0, 1),
    Sketcher.Constraint("Coincident", 4, 2, 5, 1),
    Sketcher.Constraint("Coincident", 5, 2, 6, 1),
    Sketcher.Constraint("Coincident", 6, 2, 7, 1),
    Sketcher.Constraint("Coincident", 7, 2, 4, 1),
    Sketcher.Constraint("Coincident", 8, 2, 9, 1),
    Sketcher.Constraint("Coincident", 9, 2, 10, 1),
    Sketcher.Constraint("Coincident", 10, 2, 11, 1),
    Sketcher.Constraint("Coincident", 11, 2, 8, 1),
    Sketcher.Constraint("Coincident", 12, 2, 13, 1),
    Sketcher.Constraint("Coincident", 13, 2, 14, 1),
    Sketcher.Constraint("Coincident", 14, 2, 15, 1),
    Sketcher.Constraint("Coincident", 15, 2, 12, 1),
    Sketcher.Constraint("Coincident", 16, 2, 17, 1),
    Sketcher.Constraint("Coincident", 17, 2, 18, 1),
    Sketcher.Constraint("Coincident", 18, 2, 19, 1),
    Sketcher.Constraint("Coincident", 19, 2, 16, 1),
    Sketcher.Constraint("Coincident", 20, 2, 21, 1),
    Sketcher.Constraint("Coincident", 21, 2, 22, 1),
    Sketcher.Constraint("Coincident", 22, 2, 23, 1),
    Sketcher.Constraint("Coincident", 23, 2, 20, 1),
    Sketcher.Constraint("Coincident", 24, 2, 25, 1),
    Sketcher.Constraint("Coincident", 25, 2, 26, 1),
    Sketcher.Constraint("Coincident", 26, 2, 27, 1),
    Sketcher.Constraint("Coincident", 27, 2, 24, 1),
    Sketcher.Constraint("Coincident", 28, 2, 29, 1),
    Sketcher.Constraint("Coincident", 29, 2, 30, 1),
    Sketcher.Constraint("Coincident", 30, 2, 31, 1),
    Sketcher.Constraint("Coincident", 31, 2, 28, 1),
    Sketcher.Constraint("Coincident", 32, 2, 33, 1),
    Sketcher.Constraint("Coincident", 33, 2, 34, 1),
    Sketcher.Constraint("Coincident", 34, 2, 35, 1),
    Sketcher.Constraint("Coincident", 35, 2, 32, 1),
    Sketcher.Constraint("Coincident", 36, 2, 37, 1),
    Sketcher.Constraint("Coincident", 37, 2, 38, 1),
    Sketcher.Constraint("Coincident", 38, 2, 39, 1),
    Sketcher.Constraint("Coincident", 39, 2, 36, 1),
    Sketcher.Constraint("Coincident", 40, 2, 41, 1),
    Sketcher.Constraint("Coincident", 41, 2, 42, 1),
    Sketcher.Constraint("Coincident", 42, 2, 43, 1),
    Sketcher.Constraint("Coincident", 43, 2, 40, 1),
    Sketcher.Constraint("Coincident", 44, 2, 45, 1),
    Sketcher.Constraint("Coincident", 45, 2, 46, 1),
    Sketcher.Constraint("Coincident", 46, 2, 47, 1),
    Sketcher.Constraint("Coincident", 47, 2, 44, 1),
    Sketcher.Constraint("Horizontal", 0),
    Sketcher.Constraint("Vertical", 1),
    Sketcher.Constraint("Horizontal", 2),
    Sketcher.Constraint("Vertical", 3),
    Sketcher.Constraint("Horizontal", 4),
    Sketcher.Constraint("Vertical", 5),
    Sketcher.Constraint("Horizontal", 6),
    Sketcher.Constraint("Vertical", 7),
    Sketcher.Constraint("Horizontal", 8),
    Sketcher.Constraint("Vertical", 9),
    Sketcher.Constraint("Horizontal", 10),
    Sketcher.Constraint("Vertical", 11),
    Sketcher.Constraint("Horizontal", 12),
    Sketcher.Constraint("Vertical", 13),
    Sketcher.Constraint("Horizontal", 14),
    Sketcher.Constraint("Vertical", 15),
    Sketcher.Constraint("Horizontal", 16),
    Sketcher.Constraint("Vertical", 17),
    Sketcher.Constraint("Horizontal", 18),
    Sketcher.Constraint("Vertical", 19),
    Sketcher.Constraint("Horizontal", 20),
    Sketcher.Constraint("Vertical", 21),
    Sketcher.Constraint("Horizontal", 22),
    Sketcher.Constraint("Vertical", 23),
    Sketcher.Constraint("Horizontal", 24),
    Sketcher.Constraint("Vertical", 25),
    Sketcher.Constraint("Horizontal", 26),
    Sketcher.Constraint("Vertical", 27),
    Sketcher.Constraint("Horizontal", 28),
    Sketcher.Constraint("Vertical", 29),
    Sketcher.Constraint("Horizontal", 30),
    Sketcher.Constraint("Vertical", 31),
    Sketcher.Constraint("Horizontal", 32),
    Sketcher.Constraint("Vertical", 33),
    Sketcher.Constraint("Horizontal", 34),
    Sketcher.Constraint("Vertical", 35),
    Sketcher.Constraint("Horizontal", 36),
    Sketcher.Constraint("Vertical", 37),
    Sketcher.Constraint("Horizontal", 38),
    Sketcher.Constraint("Vertical", 39),
    Sketcher.Constraint("Horizontal", 40),
    Sketcher.Constraint("Vertical", 41),
    Sketcher.Constraint("Horizontal", 42),
    Sketcher.Constraint("Vertical", 43),
    Sketcher.Constraint("Horizontal", 44),
    Sketcher.Constraint("Vertical", 45),
    Sketcher.Constraint("Horizontal", 46),
    Sketcher.Constraint("Vertical", 47),
    Sketcher.Constraint("Symmetric", 6, 2, 24, 2, -1, 1),
    Sketcher.Constraint("Symmetric", 4, 2, 26, 2, -1, 1),
    Sketcher.Constraint("Symmetric", 10, 2, 28, 2, -1, 1),
    Sketcher.Constraint("Symmetric", 8, 2, 30, 2, -1, 1),
    Sketcher.Constraint("Symmetric", 14, 2, 32, 2, -1, 1),
    Sketcher.Constraint("Symmetric", 12, 2, 34, 2, -1, 1),
    Sketcher.Constraint("Symmetric", 18, 2, 36, 2, -1, 1),
    Sketcher.Constraint("Symmetric", 16, 2, 38, 2, -1, 1),
    Sketcher.Constraint("Symmetric", 22, 2, 40, 2, -1, 1),
    Sketcher.Constraint("Symmetric", 20, 2, 42, 2, -1, 1),
    Sketcher.Constraint("Symmetric", 2, 2, 44, 2, -1, 1),
    Sketcher.Constraint("Symmetric", 0, 2, 46, 2, -1, 1),
    Sketcher.Constraint("Symmetric", 3, 2, 24, 2, -2),
    Sketcher.Constraint("Symmetric", 1, 2, 26, 2, -2),
    Sketcher.Constraint("Symmetric", 23, 2, 28, 2, -2),
    Sketcher.Constraint("Symmetric", 21, 2, 30, 2, -2),
    Sketcher.Constraint("Symmetric", 19, 2, 32, 2, -2),
    Sketcher.Constraint("Symmetric", 17, 2, 34, 2, -2),
    Sketcher.Constraint("Vertical", 5, 2, 8, 2),
    Sketcher.Constraint("Vertical", 7, 2, 10, 2),
    Sketcher.Constraint("Vertical", 9, 2, 12, 2),
    Sketcher.Constraint("Vertical", 11, 2, 14, 2),
    Sketcher.Constraint("Equal", 7, 9),
    Sketcher.Constraint("Equal", 11, 13),
    Sketcher.Constraint("DistanceX", 0, 2, 0, 1, Q("3 mm")),
    Sketcher.Constraint("DistanceY", 1, 2, 1, 1, Q("15 mm")),
    Sketcher.Constraint("DistanceY", 4, 2, 8, 2, Q("30 mm")),
    Sketcher.Constraint("DistanceY", 8, 2, 12, 2, Q("30 mm")),
    Sketcher.Constraint("DistanceY", 12, 2, 16, 2, Q("30 mm")),
    Sketcher.Constraint("DistanceX", 0, 2, 24, 2, Q("178 mm")),
])
pocket1 = body.newObject("PartDesign::Pocket", "Pocket")
pocket1.Profile = sketch3
pocket1.Length = 3

# Sketch on XY plane
sketch4 = body.newObject("Sketcher::SketchObject", "Sketch003")
sketch4.AttachmentSupport = (doc.getObject("XY_Plane"), [""])
sketch4.MapMode = "FlatFace"
sketch4.AttachmentOffset = App.Placement(V(0, 0, 3), App.Rotation())
sketch4.addGeometry([
    Part.LineSegment(V(85.5, 90.5, 0), V(90.5, 90.5, 0)),  # 0
    Part.LineSegment(V(90.5, 90.5, 0), V(90.5, 93.5, 0)),  # 1
    Part.LineSegment(V(90.5, 93.5, 0), V(85.5, 93.5, 0)),  # 2
    Part.LineSegment(V(85.5, 93.5, 0), V(85.5, 90.5, 0)),  # 3
    Part.LineSegment(V(90.5, -90.5, 0), V(85.5, -90.5, 0)),  # 4
    Part.LineSegment(V(85.5, -90.5, 0), V(85.5, -93.5, 0)),  # 5
    Part.LineSegment(V(85.5, -93.5, 0), V(90.5, -93.5, 0)),  # 6
    Part.LineSegment(V(90.5, -93.5, 0), V(90.5, -90.5, 0)),  # 7
], False)
sketch4.addConstraint([
    Sketcher.Constraint("Coincident", 0, 2, 1, 1),
    Sketcher.Constraint("Coincident", 1, 2, 2, 1),
    Sketcher.Constraint("Coincident", 2, 2, 3, 1),
    Sketcher.Constraint("Coincident", 3, 2, 0, 1),
    Sketcher.Constraint("Coincident", 4, 2, 5, 1),
    Sketcher.Constraint("Coincident", 5, 2, 6, 1),
    Sketcher.Constraint("Coincident", 6, 2, 7, 1),
    Sketcher.Constraint("Coincident", 7, 2, 4, 1),
    Sketcher.Constraint("Horizontal", 0),
    Sketcher.Constraint("Vertical", 1),
    Sketcher.Constraint("Horizontal", 2),
    Sketcher.Constraint("Vertical", 3),
    Sketcher.Constraint("Horizontal", 4),
    Sketcher.Constraint("Vertical", 5),
    Sketcher.Constraint("Horizontal", 6),
    Sketcher.Constraint("Vertical", 7),
    Sketcher.Constraint("Symmetric", 3, 2, 4, 2, -1),
    Sketcher.Constraint("Symmetric", 1, 2, 6, 2, -1),
    Sketcher.Constraint("DistanceY", 4, 2, 2, 2, Q("184 mm")),
    Sketcher.Constraint("DistanceX", 0, 1, 0, 2, Q("5 mm")),
    Sketcher.Constraint("DistanceY", 1, 1, 1, 2, Q("3 mm")),
    Sketcher.Constraint("DistanceX", -1, 1, 0, 2, Q("90.5 mm")),
])
pad3 = body.newObject("PartDesign::Pad", "Pad002")
pad3.Profile = sketch4
pad3.Length = 3
pad3.Reversed = True

# Sketch on XY plane
sketch5 = body.newObject("Sketcher::SketchObject", "Sketch004")
sketch5.AttachmentSupport = (doc.getObject("XY_Plane"), [""])
sketch5.MapMode = "FlatFace"
sketch5.AttachmentOffset = App.Placement(V(0, 0, 3), App.Rotation())
sketch5.addGeometry([
    Part.Circle(V(-84, -86, 0), V(0, 0, 1), 1.5),
    Part.Circle(V(84, -86, 0), V(0, 0, 1), 1.5),
], False)
sketch5.addConstraint([
    Sketcher.Constraint("Equal", 0, 1),
    Sketcher.Constraint("Symmetric", 0, 3, 1, 3, -2),
    Sketcher.Constraint("Diameter", 0, Q("3 mm")),
    Sketcher.Constraint("DistanceX", 0, 3, -1, 1, Q("84 mm")),
    Sketcher.Constraint("DistanceY", 0, 3, -1, 1, Q("86 mm")),
])
pocket2 = body.newObject("PartDesign::Pocket", "Pocket001")
pocket2.Profile = sketch5
pocket2.Length = 10

# Sketch on XY plane
sketch6 = body.newObject("Sketcher::SketchObject", "Sketch005")
sketch6.AttachmentSupport = (doc.getObject("XY_Plane"), [""])
sketch6.MapMode = "FlatFace"
sketch6.AttachmentOffset = App.Placement(V(0, 0, 3), App.Rotation())
sketch6.addGeometry([
    Part.Circle(V(-78, 81, 0), V(0, 0, 1), 2),
    Part.Circle(V(78, 81, 0), V(0, 0, 1), 2),
], False)
sketch6.addConstraint([
    Sketcher.Constraint("Equal", 0, 1),
    Sketcher.Constraint("Symmetric", 0, 3, 1, 3, -2),
    Sketcher.Constraint("Diameter", 0, Q("4 mm")),
    Sketcher.Constraint("DistanceX", 0, 3, -1, 1, Q("78 mm")),
    Sketcher.Constraint("DistanceY", -1, 1, 0, 3, Q("81 mm")),
])
pocket3 = body.newObject("PartDesign::Pocket", "Pocket002")
pocket3.Profile = sketch6
pocket3.Length = 10

doc.recompute()
